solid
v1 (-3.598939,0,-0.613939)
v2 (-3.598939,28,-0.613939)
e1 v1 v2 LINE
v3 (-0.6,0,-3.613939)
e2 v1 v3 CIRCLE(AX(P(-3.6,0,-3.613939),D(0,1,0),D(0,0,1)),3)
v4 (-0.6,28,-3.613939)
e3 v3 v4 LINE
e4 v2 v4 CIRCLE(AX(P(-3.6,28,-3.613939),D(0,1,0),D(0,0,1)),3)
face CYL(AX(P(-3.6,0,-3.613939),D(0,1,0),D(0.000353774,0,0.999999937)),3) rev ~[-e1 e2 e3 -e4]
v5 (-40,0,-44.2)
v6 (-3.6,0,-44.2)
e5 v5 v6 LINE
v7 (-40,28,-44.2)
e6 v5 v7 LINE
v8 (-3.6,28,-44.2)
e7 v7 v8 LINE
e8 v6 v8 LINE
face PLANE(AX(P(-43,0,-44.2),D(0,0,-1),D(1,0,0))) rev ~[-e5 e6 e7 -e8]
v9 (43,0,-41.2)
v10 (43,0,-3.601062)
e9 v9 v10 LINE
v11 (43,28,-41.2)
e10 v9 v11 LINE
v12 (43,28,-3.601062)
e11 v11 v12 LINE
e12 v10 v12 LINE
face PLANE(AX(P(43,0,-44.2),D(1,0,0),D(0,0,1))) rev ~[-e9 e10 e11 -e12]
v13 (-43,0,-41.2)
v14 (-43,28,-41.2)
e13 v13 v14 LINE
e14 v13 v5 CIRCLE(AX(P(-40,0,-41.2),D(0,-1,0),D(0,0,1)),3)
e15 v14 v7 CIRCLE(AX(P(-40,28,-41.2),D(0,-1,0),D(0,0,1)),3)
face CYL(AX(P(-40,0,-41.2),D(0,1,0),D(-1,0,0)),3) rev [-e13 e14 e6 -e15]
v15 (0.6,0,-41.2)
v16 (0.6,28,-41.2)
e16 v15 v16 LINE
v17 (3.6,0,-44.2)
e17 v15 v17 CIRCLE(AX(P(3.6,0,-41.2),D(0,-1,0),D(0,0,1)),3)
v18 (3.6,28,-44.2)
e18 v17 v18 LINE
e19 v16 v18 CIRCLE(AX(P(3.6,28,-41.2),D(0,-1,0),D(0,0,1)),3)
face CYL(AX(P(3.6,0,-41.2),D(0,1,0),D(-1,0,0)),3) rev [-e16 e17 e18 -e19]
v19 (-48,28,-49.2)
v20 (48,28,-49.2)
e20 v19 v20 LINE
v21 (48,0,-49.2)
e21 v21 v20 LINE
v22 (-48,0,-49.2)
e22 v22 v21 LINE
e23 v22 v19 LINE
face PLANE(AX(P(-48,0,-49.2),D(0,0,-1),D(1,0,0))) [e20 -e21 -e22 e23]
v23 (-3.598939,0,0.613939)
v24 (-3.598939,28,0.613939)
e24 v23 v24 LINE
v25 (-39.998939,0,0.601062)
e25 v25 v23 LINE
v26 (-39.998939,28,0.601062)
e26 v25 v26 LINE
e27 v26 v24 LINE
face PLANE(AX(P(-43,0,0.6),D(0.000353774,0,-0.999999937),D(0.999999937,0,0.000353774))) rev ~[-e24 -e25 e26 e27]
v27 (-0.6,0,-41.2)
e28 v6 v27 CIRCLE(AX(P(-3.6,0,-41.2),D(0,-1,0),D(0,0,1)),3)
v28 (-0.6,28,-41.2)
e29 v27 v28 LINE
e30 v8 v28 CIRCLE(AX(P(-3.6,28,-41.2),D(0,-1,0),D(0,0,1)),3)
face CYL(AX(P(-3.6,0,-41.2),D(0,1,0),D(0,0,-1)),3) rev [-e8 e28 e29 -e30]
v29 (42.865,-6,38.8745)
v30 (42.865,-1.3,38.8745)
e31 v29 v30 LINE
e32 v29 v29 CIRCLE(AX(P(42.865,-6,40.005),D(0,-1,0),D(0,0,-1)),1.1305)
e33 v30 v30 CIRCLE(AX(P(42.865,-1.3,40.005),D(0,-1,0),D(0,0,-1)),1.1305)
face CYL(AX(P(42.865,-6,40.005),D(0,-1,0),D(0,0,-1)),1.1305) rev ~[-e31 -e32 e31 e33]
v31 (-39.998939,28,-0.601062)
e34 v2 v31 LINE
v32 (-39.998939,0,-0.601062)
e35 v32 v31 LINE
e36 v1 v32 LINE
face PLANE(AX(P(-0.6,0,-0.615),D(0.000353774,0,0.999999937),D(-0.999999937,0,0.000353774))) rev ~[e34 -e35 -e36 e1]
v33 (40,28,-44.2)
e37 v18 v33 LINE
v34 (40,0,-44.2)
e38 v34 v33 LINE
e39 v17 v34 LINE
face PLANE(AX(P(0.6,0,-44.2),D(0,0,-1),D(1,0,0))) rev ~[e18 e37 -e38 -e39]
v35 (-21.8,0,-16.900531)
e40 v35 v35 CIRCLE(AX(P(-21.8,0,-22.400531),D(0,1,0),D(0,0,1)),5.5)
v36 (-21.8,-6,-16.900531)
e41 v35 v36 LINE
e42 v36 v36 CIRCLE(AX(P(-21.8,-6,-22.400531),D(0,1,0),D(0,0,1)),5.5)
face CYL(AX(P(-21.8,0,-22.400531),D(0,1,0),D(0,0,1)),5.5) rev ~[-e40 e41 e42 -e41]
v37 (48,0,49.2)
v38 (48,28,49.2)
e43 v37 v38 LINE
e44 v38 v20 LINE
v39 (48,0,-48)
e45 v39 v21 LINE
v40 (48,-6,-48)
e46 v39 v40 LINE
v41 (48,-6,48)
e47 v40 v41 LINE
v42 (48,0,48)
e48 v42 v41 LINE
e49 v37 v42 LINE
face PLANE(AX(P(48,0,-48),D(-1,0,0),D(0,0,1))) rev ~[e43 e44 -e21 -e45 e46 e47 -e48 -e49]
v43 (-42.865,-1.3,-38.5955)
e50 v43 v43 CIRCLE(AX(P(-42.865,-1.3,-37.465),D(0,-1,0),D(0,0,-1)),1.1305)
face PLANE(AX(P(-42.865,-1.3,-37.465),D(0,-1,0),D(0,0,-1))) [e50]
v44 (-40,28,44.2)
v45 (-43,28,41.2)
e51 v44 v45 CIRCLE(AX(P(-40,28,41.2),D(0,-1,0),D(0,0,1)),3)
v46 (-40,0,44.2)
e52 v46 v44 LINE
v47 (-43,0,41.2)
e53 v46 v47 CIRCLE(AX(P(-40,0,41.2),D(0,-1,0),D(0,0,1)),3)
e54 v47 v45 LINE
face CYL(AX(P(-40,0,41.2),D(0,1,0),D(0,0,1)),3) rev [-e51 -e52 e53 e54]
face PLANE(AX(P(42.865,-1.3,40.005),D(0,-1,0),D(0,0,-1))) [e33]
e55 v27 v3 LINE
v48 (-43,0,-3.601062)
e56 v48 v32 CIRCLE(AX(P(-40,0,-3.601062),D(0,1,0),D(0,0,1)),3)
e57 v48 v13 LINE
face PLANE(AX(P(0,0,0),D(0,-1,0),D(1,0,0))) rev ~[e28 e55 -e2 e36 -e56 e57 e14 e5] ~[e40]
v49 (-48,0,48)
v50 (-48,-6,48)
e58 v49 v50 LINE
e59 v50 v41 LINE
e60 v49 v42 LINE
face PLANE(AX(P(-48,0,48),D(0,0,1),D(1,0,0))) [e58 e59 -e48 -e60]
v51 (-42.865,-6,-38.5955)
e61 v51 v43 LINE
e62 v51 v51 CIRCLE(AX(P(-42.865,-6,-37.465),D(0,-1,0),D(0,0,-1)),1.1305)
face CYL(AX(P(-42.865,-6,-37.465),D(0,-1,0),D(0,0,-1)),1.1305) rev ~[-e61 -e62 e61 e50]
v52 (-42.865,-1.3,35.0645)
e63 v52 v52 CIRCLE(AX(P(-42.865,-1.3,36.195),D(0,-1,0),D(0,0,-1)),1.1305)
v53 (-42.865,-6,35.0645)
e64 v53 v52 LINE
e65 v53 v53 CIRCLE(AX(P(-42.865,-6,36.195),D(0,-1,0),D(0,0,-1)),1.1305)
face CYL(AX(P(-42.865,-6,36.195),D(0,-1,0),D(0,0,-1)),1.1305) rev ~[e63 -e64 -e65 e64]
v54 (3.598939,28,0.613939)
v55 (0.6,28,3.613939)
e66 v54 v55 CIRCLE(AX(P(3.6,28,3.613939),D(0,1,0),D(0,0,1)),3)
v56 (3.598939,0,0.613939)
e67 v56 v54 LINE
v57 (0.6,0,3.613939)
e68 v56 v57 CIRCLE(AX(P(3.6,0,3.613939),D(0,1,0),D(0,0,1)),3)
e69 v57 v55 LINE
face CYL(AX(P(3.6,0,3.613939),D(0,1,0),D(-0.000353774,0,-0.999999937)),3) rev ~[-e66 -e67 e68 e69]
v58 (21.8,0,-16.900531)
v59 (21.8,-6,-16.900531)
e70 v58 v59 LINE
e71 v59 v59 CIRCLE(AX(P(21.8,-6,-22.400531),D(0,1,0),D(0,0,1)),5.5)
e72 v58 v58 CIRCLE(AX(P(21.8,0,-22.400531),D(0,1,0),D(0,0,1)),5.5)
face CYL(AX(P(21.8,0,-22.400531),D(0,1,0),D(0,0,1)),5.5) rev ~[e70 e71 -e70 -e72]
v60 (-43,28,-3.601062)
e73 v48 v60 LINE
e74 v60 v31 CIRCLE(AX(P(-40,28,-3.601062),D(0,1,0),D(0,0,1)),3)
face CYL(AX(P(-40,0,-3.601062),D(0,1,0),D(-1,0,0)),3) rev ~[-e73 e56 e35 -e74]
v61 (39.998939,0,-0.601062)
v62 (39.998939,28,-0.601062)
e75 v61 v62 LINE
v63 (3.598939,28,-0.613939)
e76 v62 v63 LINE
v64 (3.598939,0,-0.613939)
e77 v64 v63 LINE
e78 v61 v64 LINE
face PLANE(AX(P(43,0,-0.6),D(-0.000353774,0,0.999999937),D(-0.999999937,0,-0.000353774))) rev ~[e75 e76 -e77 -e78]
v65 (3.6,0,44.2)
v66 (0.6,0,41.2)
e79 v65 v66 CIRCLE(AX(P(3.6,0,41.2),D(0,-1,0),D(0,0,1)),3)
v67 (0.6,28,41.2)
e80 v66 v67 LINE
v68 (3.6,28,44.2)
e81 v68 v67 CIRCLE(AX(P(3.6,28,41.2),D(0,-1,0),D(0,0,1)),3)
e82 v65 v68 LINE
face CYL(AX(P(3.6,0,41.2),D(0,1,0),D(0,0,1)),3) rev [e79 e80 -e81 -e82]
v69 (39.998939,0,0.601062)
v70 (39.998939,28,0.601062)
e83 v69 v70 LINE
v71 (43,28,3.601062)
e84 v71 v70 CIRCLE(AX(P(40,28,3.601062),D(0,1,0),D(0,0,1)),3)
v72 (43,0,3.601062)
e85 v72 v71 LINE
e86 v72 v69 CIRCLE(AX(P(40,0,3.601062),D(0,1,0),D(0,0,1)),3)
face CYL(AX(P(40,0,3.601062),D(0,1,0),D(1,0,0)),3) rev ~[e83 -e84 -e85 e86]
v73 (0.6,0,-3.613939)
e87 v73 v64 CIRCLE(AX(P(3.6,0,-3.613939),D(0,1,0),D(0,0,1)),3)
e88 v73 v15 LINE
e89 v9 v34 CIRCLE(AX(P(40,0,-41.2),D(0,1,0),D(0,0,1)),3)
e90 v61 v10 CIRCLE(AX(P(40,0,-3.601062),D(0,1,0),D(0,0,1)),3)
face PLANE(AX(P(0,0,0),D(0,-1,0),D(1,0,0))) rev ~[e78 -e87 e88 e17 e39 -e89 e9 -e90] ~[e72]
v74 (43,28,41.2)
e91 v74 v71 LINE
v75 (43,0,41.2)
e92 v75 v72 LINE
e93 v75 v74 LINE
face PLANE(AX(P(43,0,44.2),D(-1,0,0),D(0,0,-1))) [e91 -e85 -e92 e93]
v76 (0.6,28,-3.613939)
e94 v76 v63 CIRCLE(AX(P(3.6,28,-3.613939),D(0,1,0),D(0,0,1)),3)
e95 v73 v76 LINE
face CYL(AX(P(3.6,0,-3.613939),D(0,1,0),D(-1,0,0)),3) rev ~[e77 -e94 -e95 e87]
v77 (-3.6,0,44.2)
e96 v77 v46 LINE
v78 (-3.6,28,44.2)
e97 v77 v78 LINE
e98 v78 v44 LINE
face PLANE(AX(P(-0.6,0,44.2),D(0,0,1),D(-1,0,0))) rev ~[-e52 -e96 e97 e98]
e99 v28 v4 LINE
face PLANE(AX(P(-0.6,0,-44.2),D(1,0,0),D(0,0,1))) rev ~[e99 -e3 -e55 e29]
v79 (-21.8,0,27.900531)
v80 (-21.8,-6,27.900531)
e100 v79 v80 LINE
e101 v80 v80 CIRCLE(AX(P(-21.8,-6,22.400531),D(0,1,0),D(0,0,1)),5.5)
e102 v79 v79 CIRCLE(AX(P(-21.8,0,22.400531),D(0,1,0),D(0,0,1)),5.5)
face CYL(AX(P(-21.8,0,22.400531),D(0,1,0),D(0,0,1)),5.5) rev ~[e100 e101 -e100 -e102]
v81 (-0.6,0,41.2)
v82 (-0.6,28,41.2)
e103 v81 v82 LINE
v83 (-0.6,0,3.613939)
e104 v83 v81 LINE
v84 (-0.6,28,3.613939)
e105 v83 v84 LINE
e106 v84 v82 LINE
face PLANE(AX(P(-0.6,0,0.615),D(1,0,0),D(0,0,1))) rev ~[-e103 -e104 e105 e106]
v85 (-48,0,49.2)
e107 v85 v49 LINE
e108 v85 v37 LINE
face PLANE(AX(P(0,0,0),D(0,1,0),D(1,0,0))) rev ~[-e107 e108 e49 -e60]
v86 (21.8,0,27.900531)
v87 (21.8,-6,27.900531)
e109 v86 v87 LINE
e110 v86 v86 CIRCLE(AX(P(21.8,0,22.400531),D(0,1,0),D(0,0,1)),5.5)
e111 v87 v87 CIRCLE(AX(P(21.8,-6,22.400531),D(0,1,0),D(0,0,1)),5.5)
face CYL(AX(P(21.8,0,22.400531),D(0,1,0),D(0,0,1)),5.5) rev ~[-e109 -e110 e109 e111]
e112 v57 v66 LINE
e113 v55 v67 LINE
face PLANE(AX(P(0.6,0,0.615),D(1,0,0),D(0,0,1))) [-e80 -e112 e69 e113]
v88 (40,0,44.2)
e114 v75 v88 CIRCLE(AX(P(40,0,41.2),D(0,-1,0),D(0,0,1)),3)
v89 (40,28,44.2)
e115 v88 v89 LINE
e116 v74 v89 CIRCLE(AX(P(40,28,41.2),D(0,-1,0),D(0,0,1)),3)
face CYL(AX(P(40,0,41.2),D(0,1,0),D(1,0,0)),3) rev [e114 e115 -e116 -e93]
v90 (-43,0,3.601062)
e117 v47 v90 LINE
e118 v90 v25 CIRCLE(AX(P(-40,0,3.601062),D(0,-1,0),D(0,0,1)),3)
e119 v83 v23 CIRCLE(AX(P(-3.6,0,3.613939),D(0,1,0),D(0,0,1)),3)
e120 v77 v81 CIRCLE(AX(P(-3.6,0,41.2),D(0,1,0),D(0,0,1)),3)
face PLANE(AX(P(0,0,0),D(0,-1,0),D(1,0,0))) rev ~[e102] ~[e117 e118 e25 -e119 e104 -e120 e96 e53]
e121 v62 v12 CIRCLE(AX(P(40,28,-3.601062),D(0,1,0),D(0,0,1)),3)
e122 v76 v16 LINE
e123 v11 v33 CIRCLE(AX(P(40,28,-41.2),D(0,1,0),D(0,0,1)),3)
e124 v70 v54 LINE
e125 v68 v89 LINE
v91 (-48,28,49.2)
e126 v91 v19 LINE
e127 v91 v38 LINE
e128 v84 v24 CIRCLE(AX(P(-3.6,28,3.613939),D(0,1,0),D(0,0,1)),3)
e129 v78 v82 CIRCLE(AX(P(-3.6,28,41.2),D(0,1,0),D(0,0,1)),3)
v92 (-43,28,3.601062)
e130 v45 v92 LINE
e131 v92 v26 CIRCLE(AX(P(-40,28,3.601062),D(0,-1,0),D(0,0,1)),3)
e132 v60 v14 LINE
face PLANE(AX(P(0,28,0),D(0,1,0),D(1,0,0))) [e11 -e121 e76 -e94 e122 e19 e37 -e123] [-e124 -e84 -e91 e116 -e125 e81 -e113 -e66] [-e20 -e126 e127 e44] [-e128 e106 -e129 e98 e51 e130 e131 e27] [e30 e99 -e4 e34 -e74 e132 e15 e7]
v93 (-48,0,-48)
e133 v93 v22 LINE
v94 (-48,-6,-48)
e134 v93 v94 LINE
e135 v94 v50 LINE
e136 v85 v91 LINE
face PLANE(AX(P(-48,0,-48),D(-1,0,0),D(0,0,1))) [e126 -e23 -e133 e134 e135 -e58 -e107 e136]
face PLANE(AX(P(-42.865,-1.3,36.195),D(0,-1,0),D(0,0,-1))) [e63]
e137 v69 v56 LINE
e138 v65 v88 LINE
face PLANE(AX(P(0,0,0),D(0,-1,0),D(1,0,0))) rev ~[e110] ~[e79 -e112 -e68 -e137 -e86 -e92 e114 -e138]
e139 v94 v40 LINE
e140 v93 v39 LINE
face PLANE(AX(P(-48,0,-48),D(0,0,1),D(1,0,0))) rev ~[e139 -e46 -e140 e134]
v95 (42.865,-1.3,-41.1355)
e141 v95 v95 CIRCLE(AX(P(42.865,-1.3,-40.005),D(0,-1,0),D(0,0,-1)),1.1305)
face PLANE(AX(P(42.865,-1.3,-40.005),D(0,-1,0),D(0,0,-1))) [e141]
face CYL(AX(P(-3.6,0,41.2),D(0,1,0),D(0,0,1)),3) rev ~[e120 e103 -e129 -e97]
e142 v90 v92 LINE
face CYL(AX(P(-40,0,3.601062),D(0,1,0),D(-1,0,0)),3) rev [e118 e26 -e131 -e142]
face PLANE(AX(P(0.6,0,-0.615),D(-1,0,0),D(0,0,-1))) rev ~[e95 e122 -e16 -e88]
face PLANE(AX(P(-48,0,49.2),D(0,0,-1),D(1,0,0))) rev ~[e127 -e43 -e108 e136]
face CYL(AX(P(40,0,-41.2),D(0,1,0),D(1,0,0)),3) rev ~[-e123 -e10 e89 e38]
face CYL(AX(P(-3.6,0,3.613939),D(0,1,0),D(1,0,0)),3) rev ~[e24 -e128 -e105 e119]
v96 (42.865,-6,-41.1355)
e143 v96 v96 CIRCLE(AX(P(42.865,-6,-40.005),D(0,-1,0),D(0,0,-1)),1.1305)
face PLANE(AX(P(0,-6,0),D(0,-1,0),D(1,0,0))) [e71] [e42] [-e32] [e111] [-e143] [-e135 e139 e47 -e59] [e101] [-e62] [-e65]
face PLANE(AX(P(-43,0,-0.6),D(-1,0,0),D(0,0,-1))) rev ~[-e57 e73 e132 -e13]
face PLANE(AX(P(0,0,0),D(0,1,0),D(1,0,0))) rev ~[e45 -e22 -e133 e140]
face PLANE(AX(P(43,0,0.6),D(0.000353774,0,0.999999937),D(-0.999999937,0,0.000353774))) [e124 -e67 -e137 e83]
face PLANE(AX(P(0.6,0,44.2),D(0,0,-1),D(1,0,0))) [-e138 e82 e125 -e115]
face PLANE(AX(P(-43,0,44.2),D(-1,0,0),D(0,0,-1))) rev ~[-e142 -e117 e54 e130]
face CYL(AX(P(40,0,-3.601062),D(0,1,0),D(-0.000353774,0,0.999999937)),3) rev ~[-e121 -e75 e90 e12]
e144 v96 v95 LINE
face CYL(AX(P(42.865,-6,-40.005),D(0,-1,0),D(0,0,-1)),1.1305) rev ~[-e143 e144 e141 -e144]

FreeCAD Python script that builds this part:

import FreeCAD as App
import Part
import Sketcher

V = App.Vector
Q = App.Units.Quantity


def edges_at(feature, points):
    """Names of the edges that pass closest to the given points."""
    edges = feature.Shape.Edges
    near = lambda p: min(range(len(edges)), key=lambda i: edges[i].distToShape(Part.Vertex(*p))[0])
    return sorted({f"Edge{near(p) + 1}" for p in points})

doc = App.newDocument("Part")
body = doc.addObject("PartDesign::Body", "Body")

# Sketch on XZ plane
sketch1 = body.newObject("Sketcher::SketchObject", "Sketch")
sketch1.AttachmentSupport = (doc.getObject("XZ_Plane"), [""])
sketch1.MapMode = "FlatFace"
sketch1.addGeometry([
    Part.LineSegment(V(-48, -49, 0), V(-48, 49, 0)),  # 0
    Part.LineSegment(V(-48, 49, 0), V(48, 49, 0)),  # 1
    Part.LineSegment(V(48, 49, 0), V(48, -49, 0)),  # 2
    Part.LineSegment(V(48, -49, 0), V(-48, -49, 0)),  # 3
    Part.LineSegment(V(-1, 44, 0), V(-43, 44, 0)),  # 4
    Part.LineSegment(V(-43, 44, 0), V(-43, 1, 0)),  # 5
    Part.LineSegment(V(-43, 1, 0), V(-1, 1, 0)),  # 6
    Part.LineSegment(V(-1, 1, 0), V(-1, 44, 0)),  # 7
    Part.LineSegment(V(43, 1, 0), V(43, 44, 0)),  # 8
    Part.LineSegment(V(43, 44, 0), V(1, 44, 0)),  # 9
    Part.LineSegment(V(1, 44, 0), V(1, 1, 0)),  # 10
    Part.LineSegment(V(1, 1, 0), V(43, 1, 0)),  # 11
    Part.LineSegment(V(-43, -1, 0), V(-43, -44, 0)),  # 12
    Part.LineSegment(V(-43, -44, 0), V(-1, -44, 0)),  # 13
    Part.LineSegment(V(-1, -44, 0), V(-1, -1, 0)),  # 14
    Part.LineSegment(V(-1, -1, 0), V(-43, -1, 0)),  # 15
    Part.LineSegment(V(1, -1, 0), V(1, -44, 0)),  # 16
    Part.LineSegment(V(1, -44, 0), V(43, -44, 0)),  # 17
    Part.LineSegment(V(43, -44, 0), V(43, -1, 0)),  # 18
    Part.LineSegment(V(43, -1, 0), V(1, -1, 0)),  # 19
], False)
sketch1.addConstraint([
    Sketcher.Constraint("Coincident", 0, 2, 1, 1),
    Sketcher.Constraint("Coincident", 1, 2, 2, 1),
    Sketcher.Constraint("Coincident", 2, 2, 3, 1),
    Sketcher.Constraint("Coincident", 3, 2, 0, 1),
    Sketcher.Constraint("Coincident", 4, 2, 5, 1),
    Sketcher.Constraint("Coincident", 5, 2, 6, 1),
    Sketcher.Constraint("Coincident", 6, 2, 7, 1),
    Sketcher.Constraint("Coincident", 7, 2, 4, 1),
    Sketcher.Constraint("Coincident", 8, 2, 9, 1),
    Sketcher.Constraint("Coincident", 9, 2, 10, 1),
    Sketcher.Constraint("Coincident", 10, 2, 11, 1),
    Sketcher.Constraint("Coincident", 11, 2, 8, 1),
    Sketcher.Constraint("Coincident", 12, 2, 13, 1),
    Sketcher.Constraint("Coincident", 13, 2, 14, 1),
    Sketcher.Constraint("Coincident", 14, 2, 15, 1),
    Sketcher.Constraint("Coincident", 15, 2, 12, 1),
    Sketcher.Constraint("Coincident", 16, 2, 17, 1),
    Sketcher.Constraint("Coincident", 17, 2, 18, 1),
    Sketcher.Constraint("Coincident", 18, 2, 19, 1),
    Sketcher.Constraint("Coincident", 19, 2, 16, 1),
    Sketcher.Constraint("Vertical", 0),
    Sketcher.Constraint("Horizontal", 1),
    Sketcher.Constraint("Vertical", 2),
    Sketcher.Constraint("Horizontal", 3),
    Sketcher.Constraint("Horizontal", 4),
    Sketcher.Constraint("Vertical", 5),
    Sketcher.Constraint("Vertical", 7),
    Sketcher.Constraint("Vertical", 8),
    Sketcher.Constraint("Horizontal", 9),
    Sketcher.Constraint("Vertical", 10),
    Sketcher.Constraint("Vertical", 12),
    Sketcher.Constraint("Horizontal", 13),
    Sketcher.Constraint("Vertical", 14),
    Sketcher.Constraint("Vertical", 16),
    Sketcher.Constraint("Horizontal", 17),
    Sketcher.Constraint("Vertical", 18),
    Sketcher.Constraint("Symmetric", 0, 2, 2, 2, -1, 1),
    Sketcher.Constraint("Symmetric", 8, 2, 12, 2, -1, 1),
    Sketcher.Constraint("Symmetric", 10, 2, 14, 2, -1, 1),
    Sketcher.Constraint("Symmetric", 7, 2, 16, 2, -1, 1),
    Sketcher.Constraint("Symmetric", 5, 2, 18, 2, -1, 1),
    Sketcher.Constraint("Symmetric", 4, 2, 8, 2, -2),
    Sketcher.Constraint("Symmetric", 6, 2, 10, 2, -2),
    Sketcher.Constraint("Parallel", 11, 15),
    Sketcher.Constraint("Parallel", 6, 19),
    Sketcher.Constraint("Horizontal", 5, 2, 11, 2),
    Sketcher.Constraint("DistanceX", 1, 1, 1, 2, Q("96 mm")),
    Sketcher.Constraint("DistanceX", 4, 2, 4, 1, Q("42.4 mm")),
    Sketcher.Constraint("DistanceY", 0, 1, 0, 2, Q("98.4 mm")),
    Sketcher.Constraint("DistanceY", 5, 2, 5, 1, Q("43.6 mm")),
    Sketcher.Constraint("DistanceX", 4, 2, -1, 1, Q("43 mm")),
    Sketcher.Constraint("DistanceY", 4, 2, 0, 2, Q("5 mm")),
    Sketcher.Constraint("DistanceY", 7, 1, 7, 2, Q("43.585 mm")),
])
pad1 = body.newObject("PartDesign::Pad", "Pad")
pad1.Profile = sketch1
pad1.Length = 28
pad1.Reversed = True
doc.recompute()

fillet = body.newObject("PartDesign::Fillet", "Fillet")
fillet.Base = (pad1, edges_at(pad1, [
    (-43, 14, 44.2),
    (-0.6, 14, 44.2),
    (-0.6, 14, 0.615),
    (-43, 14, 0.6),
    (-43, 14, -44.2),
    (-43, 14, -0.6),
    (-0.6, 14, -0.615),
    (-0.6, 14, -44.2),
    (43, 14, -0.6),
    (43, 14, -44.2),
    (0.6, 14, -44.2),
    (0.6, 14, -0.615),
    (0.6, 14, 44.2),
    (43, 14, 44.2),
    (43, 14, 0.6),
    (0.6, 14, 0.615),
]))
fillet.Radius = 3

# Sketch on XZ plane
sketch2 = body.newObject("Sketcher::SketchObject", "Sketch001")
sketch2.AttachmentSupport = (doc.getObject("XZ_Plane"), [""])
sketch2.MapMode = "FlatFace"
sketch2.addGeometry([
    Part.LineSegment(V(-48, 48, 0), V(-48, -48, 0)),
    Part.LineSegment(V(-48, -48, 0), V(48, -48, 0)),
    Part.LineSegment(V(48, -48, 0), V(48, 48, 0)),
    Part.LineSegment(V(48, 48, 0), V(-48, 48, 0)),
], False)
sketch2.addConstraint([
    Sketcher.Constraint("Coincident", 0, 2, 1, 1),
    Sketcher.Constraint("Coincident", 1, 2, 2, 1),
    Sketcher.Constraint("Coincident", 2, 2, 3, 1),
    Sketcher.Constraint("Coincident", 3, 2, 0, 1),
    Sketcher.Constraint("Vertical", 0),
    Sketcher.Constraint("Horizontal", 1),
    Sketcher.Constraint("Vertical", 2),
    Sketcher.Constraint("Horizontal", 3),
    Sketcher.Constraint("Symmetric", 0, 2, 2, 2, -1, 1),
    Sketcher.Constraint("Equal", 3, 0),
    Sketcher.Constraint("DistanceX", 1, 1, 1, 2, Q("96 mm")),
])
pad2 = body.newObject("PartDesign::Pad", "Pad001")
pad2.Profile = sketch2
pad2.Length = 6

# Sketch on XZ plane
sketch3 = body.newObject("Sketcher::SketchObject", "Sketch002")
sketch3.AttachmentSupport = (doc.getObject("XZ_Plane"), [""])
sketch3.MapMode = "FlatFace"
sketch3.AttachmentOffset = App.Placement(V(0, 0, 6), App.Rotation())
sketch3.addGeometry([
    Part.Circle(V(42.9, -40, 0), V(0, 0, 1), 1.1),
    Part.Circle(V(-42.9, -37.5, 0), V(0, 0, 1), 1.1),
    Part.Circle(V(42.9, 40, 0), V(0, 0, 1), 1.1),
    Part.Circle(V(-42.9, 36.2, 0), V(0, 0, 1), 1.1),
], False)
sketch3.addConstraint([
    Sketcher.Constraint("Equal", 0, 1),
    Sketcher.Constraint("Equal", 1, 2),
    Sketcher.Constraint("Equal", 2, 3),
    Sketcher.Constraint("Symmetric", 0, 3, 2, 3, -1),
    Sketcher.Constraint("Vertical", 1, 3, 3, 3),
    Sketcher.Constraint("Diameter", 0, Q("2.261 mm")),
    Sketcher.Constraint("DistanceY", 0, 3, 3, 3, Q("76.2 mm")),
    Sketcher.Constraint("DistanceX", 1, 3, 0, 3, Q("85.73 mm")),
    Sketcher.Constraint("DistanceY", 0, 3, 1, 3, Q("2.54 mm")),
    Sketcher.Constraint("DistanceY", 0, 3, 2, 3, Q("80.01 mm")),
    Sketcher.Constraint("DistanceX", -1, 1, 0, 3, Q("42.865 mm")),
])
pocket1 = body.newObject("PartDesign::Pocket", "Pocket")
pocket1.Profile = sketch3
pocket1.Length = 4.7

# Sketch on XZ plane
sketch4 = body.newObject("Sketcher::SketchObject", "Sketch003")
sketch4.AttachmentSupport = (doc.getObject("XZ_Plane"), [""])
sketch4.MapMode = "FlatFace"
sketch4.addGeometry([
    Part.Circle(V(-22, -22, 0), V(0, 0, 1), 6),
    Part.Circle(V(22, -22, 0), V(0, 0, 1), 6),
    Part.Circle(V(22, 22, 0), V(0, 0, 1), 6),
    Part.Circle(V(-22, 22, 0), V(0, 0, 1), 6),
], False)
sketch4.addConstraint([
    Sketcher.Constraint("Equal", 0, 1),
    Sketcher.Constraint("Equal", 1, 2),
    Sketcher.Constraint("Equal", 2, 3),
    Sketcher.Constraint("Symmetric", 0, 3, 2, 3, -1, 1),
    Sketcher.Constraint("Symmetric", 1, 3, 3, 3, -1, 1),
    Sketcher.Constraint("Symmetric", 0, 3, 1, 3, -2),
    Sketcher.Constraint("Diameter", 0, Q("11 mm")),
    Sketcher.Constraint("DistanceX", 0, 3, -1, 1, Q("21.8 mm")),
    Sketcher.Constraint("DistanceY", 0, 3, -1, 1, Q("22.400531 mm")),
])
pocket2 = body.newObject("PartDesign::Pocket", "Pocket001")
pocket2.Profile = sketch4
pocket2.Type = "ThroughAll"
pocket2.Reversed = True

doc.recompute()
